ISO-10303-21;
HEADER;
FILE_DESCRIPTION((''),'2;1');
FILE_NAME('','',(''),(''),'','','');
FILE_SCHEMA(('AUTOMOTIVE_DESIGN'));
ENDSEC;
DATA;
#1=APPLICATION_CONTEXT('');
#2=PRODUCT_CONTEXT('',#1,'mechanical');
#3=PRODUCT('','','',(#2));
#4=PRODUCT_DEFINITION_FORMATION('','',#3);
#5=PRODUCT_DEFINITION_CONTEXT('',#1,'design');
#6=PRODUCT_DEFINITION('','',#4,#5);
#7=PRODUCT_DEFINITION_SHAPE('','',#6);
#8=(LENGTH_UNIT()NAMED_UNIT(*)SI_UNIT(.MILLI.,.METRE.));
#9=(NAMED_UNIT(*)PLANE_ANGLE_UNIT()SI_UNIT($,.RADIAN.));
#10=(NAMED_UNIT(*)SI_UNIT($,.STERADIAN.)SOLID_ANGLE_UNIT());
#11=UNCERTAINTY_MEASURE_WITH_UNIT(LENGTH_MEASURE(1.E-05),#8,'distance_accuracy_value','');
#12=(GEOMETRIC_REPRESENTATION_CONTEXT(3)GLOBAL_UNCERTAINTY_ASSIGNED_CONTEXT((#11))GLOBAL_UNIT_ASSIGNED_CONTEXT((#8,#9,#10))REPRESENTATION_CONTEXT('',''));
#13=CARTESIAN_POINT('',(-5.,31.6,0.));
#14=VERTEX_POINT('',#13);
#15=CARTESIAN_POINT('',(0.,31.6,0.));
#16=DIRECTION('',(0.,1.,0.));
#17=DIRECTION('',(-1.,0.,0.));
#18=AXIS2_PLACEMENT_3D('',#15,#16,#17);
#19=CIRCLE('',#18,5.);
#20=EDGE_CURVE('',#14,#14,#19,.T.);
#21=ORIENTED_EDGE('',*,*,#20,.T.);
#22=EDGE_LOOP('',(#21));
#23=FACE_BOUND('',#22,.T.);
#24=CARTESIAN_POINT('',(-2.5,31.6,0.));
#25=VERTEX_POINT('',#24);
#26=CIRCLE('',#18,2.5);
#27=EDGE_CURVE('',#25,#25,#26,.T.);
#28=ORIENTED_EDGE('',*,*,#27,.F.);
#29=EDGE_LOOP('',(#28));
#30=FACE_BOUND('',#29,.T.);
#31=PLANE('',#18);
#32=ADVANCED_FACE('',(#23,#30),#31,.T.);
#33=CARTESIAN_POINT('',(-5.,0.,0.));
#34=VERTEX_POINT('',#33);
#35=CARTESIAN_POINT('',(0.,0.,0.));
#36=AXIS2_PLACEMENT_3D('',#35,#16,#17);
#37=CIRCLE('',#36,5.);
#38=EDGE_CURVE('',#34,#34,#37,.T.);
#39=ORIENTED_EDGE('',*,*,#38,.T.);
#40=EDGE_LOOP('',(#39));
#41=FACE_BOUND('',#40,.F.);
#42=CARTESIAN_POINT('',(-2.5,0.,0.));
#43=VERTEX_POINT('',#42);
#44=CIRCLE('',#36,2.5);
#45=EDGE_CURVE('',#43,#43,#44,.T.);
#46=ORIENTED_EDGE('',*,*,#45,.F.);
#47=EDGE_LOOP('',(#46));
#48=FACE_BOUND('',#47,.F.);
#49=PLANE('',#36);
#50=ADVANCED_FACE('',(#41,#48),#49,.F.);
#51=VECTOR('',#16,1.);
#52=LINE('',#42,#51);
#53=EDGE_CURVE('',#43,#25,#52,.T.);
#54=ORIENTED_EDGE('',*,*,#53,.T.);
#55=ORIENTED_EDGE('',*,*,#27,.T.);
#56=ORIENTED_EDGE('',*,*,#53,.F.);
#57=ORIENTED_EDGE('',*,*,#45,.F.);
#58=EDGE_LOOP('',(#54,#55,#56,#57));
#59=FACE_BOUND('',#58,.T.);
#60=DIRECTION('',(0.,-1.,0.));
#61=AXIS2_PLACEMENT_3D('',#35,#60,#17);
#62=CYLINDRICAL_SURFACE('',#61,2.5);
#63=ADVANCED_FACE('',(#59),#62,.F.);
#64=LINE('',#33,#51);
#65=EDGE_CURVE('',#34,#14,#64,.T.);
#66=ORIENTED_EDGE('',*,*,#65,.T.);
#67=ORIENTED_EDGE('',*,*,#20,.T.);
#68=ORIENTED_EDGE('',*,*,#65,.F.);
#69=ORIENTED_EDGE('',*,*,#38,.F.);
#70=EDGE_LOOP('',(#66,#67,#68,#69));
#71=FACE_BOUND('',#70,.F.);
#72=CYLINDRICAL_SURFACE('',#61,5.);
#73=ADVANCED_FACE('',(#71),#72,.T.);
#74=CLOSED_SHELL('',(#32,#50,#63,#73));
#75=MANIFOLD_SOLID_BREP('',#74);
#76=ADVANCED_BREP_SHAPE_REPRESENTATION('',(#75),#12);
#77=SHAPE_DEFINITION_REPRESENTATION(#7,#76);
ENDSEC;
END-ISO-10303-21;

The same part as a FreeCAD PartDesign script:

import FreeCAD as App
import Part
import Sketcher
from FreeCAD import Vector
Q = App.Units.Quantity

doc = App.newDocument("Part")
body = doc.addObject("PartDesign::Body", "Body")

# Sketch on XZ plane
sketch1 = body.newObject("Sketcher::SketchObject", "Sketch")
sketch1.AttachmentSupport = (doc.getObject("XZ_Plane"), [""])
sketch1.MapMode = "FlatFace"
sketch1.addGeometry([
    Part.Circle(Vector(0, 0, 0), Vector(0, 0, 1), 5),
    Part.Circle(Vector(0, 0, 0), Vector(0, 0, 1), 2.5),
], False)
sketch1.addConstraint([
    Sketcher.Constraint("Coincident", 0, 3, -1, 1),
    Sketcher.Constraint("Coincident", 1, 3, -1, 1),
    Sketcher.Constraint("Diameter", 0, Q("10 mm")),
    Sketcher.Constraint("Diameter", 1, Q("5 mm")),
])
pad1 = body.newObject("PartDesign::Pad", "Pad")
pad1.Profile = sketch1
pad1.Length = 31.6
pad1.Reversed = True

doc.recompute()
